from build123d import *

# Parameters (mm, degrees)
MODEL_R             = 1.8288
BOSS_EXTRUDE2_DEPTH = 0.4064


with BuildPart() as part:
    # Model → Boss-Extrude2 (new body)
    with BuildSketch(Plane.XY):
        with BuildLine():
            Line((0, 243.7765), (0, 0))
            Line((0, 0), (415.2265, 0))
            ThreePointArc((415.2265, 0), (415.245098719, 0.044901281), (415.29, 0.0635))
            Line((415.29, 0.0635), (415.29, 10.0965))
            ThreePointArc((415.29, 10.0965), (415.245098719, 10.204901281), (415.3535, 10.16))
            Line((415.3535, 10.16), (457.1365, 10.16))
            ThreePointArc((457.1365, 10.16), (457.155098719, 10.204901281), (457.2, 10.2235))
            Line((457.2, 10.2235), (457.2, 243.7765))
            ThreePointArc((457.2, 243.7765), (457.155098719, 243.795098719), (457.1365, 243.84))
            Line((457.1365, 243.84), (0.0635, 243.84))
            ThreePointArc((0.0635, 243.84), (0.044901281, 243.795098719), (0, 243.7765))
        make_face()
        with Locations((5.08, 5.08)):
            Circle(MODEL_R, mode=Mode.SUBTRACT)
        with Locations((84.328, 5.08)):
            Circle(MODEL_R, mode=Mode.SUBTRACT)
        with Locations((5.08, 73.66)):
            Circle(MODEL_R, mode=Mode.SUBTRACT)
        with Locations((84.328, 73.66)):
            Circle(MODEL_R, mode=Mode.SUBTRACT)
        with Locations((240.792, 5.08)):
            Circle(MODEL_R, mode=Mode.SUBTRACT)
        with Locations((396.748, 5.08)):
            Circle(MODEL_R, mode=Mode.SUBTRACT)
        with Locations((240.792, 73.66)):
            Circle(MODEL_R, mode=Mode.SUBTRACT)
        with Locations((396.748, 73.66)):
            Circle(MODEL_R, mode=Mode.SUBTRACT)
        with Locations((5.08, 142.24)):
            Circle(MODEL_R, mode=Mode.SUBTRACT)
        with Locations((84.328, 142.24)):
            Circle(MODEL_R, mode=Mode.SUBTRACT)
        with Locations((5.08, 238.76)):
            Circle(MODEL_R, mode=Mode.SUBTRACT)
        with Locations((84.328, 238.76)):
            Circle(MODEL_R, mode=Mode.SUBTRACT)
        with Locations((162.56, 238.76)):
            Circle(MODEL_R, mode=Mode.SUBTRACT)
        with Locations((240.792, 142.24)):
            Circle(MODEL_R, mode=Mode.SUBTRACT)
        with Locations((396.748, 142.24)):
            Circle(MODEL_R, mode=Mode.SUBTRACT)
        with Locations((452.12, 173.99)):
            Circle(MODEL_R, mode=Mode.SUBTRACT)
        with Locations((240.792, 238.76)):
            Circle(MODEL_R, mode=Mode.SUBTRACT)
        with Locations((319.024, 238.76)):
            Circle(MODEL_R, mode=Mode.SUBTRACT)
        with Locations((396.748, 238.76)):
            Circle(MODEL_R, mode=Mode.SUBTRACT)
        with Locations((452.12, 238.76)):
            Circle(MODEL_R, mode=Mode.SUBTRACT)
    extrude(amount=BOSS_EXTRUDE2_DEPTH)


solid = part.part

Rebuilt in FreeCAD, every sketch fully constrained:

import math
import FreeCAD as App
import Part
import Sketcher
Q = App.Units.Quantity

doc = App.newDocument("Part")
body = doc.addObject("PartDesign::Body", "Body")

sketch1 = body.newObject("Sketcher::SketchObject", "Sketch")
sketch1.AttachmentSupport = (doc.getObject("XY_Plane"), [""])
sketch1.MapMode = "FlatFace"
sketch1.addGeometry([
    Part.LineSegment(App.Vector(0, 243.78, 0), App.Vector(0, 0, 0)),
    Part.LineSegment(App.Vector(0, 0, 0), App.Vector(415.23, 0, 0)),
    Part.ArcOfCircle(Part.Circle(App.Vector(415.29, 0, 0), App.Vector(0, 0, 1), 0.06), math.radians(90), math.radians(180)),
    Part.LineSegment(App.Vector(415.29, 0.06, 0), App.Vector(415.29, 10.1, 0)),
    Part.ArcOfCircle(Part.Circle(App.Vector(415.29, 10.16, 0), App.Vector(0, 0, 1), 0.06), math.radians(0), math.radians(270)),
    Part.LineSegment(App.Vector(415.35, 10.16, 0), App.Vector(457.14, 10.16, 0)),
    Part.ArcOfCircle(Part.Circle(App.Vector(457.2, 10.16, 0), App.Vector(0, 0, 1), 0.06), math.radians(90), math.radians(180)),
    Part.LineSegment(App.Vector(457.2, 10.22, 0), App.Vector(457.2, 243.78, 0)),
    Part.ArcOfCircle(Part.Circle(App.Vector(457.2, 243.84, 0), App.Vector(0, 0, 1), 0.06), math.radians(180), math.radians(270)),
    Part.LineSegment(App.Vector(457.14, 243.84, 0), App.Vector(0.06, 243.84, 0)),
    Part.ArcOfCircle(Part.Circle(App.Vector(0, 243.84, 0), App.Vector(0, 0, 1), 0.06), math.radians(-90), math.radians(0)),
    Part.Circle(App.Vector(5.08, 5.08, 0), App.Vector(0, 0, 1), 1.83),
    Part.Circle(App.Vector(84.33, 5.08, 0), App.Vector(0, 0, 1), 1.83),
    Part.Circle(App.Vector(5.08, 73.66, 0), App.Vector(0, 0, 1), 1.83),
    Part.Circle(App.Vector(84.33, 73.66, 0), App.Vector(0, 0, 1), 1.83),
    Part.Circle(App.Vector(240.79, 5.08, 0), App.Vector(0, 0, 1), 1.83),
    Part.Circle(App.Vector(396.75, 5.08, 0), App.Vector(0, 0, 1), 1.83),
    Part.Circle(App.Vector(240.79, 73.66, 0), App.Vector(0, 0, 1), 1.83),
    Part.Circle(App.Vector(396.75, 73.66, 0), App.Vector(0, 0, 1), 1.83),
    Part.Circle(App.Vector(5.08, 142.24, 0), App.Vector(0, 0, 1), 1.83),
    Part.Circle(App.Vector(84.33, 142.24, 0), App.Vector(0, 0, 1), 1.83),
    Part.Circle(App.Vector(5.08, 238.76, 0), App.Vector(0, 0, 1), 1.83),
    Part.Circle(App.Vector(84.33, 238.76, 0), App.Vector(0, 0, 1), 1.83),
    Part.Circle(App.Vector(162.56, 238.76, 0), App.Vector(0, 0, 1), 1.83),
    Part.Circle(App.Vector(240.79, 142.24, 0), App.Vector(0, 0, 1), 1.83),
    Part.Circle(App.Vector(396.75, 142.24, 0), App.Vector(0, 0, 1), 1.83),
    Part.Circle(App.Vector(452.12, 173.99, 0), App.Vector(0, 0, 1), 1.83),
    Part.Circle(App.Vector(240.79, 238.76, 0), App.Vector(0, 0, 1), 1.83),
    Part.Circle(App.Vector(319.02, 238.76, 0), App.Vector(0, 0, 1), 1.83),
    Part.Circle(App.Vector(396.75, 238.76, 0), App.Vector(0, 0, 1), 1.83),
    Part.Circle(App.Vector(452.12, 238.76, 0), App.Vector(0, 0, 1), 1.83),
], False)
sketch1.addConstraint([
    Sketcher.Constraint("Coincident", 0, 2, 1, 1),
    Sketcher.Constraint("Coincident", 1, 2, 2, 2),
    Sketcher.Constraint("Coincident", 2, 1, 3, 1),
    Sketcher.Constraint("Coincident", 3, 2, 4, 2),
    Sketcher.Constraint("Coincident", 4, 1, 5, 1),
    Sketcher.Constraint("Coincident", 5, 2, 6, 2),
    Sketcher.Constraint("Coincident", 6, 1, 7, 1),
    Sketcher.Constraint("Coincident", 7, 2, 8, 2),
    Sketcher.Constraint("Coincident", 8, 1, 9, 1),
    Sketcher.Constraint("Coincident", 9, 2, 10, 2),
    Sketcher.Constraint("Coincident", 10, 1, 0, 1),
    Sketcher.Constraint("Vertical", 0),
    Sketcher.Constraint("Horizontal", 1),
    Sketcher.Constraint("Vertical", 3),
    Sketcher.Constraint("Horizontal", 5),
    Sketcher.Constraint("Vertical", 7),
    Sketcher.Constraint("Horizontal", 9),
    Sketcher.Constraint("Coincident", 0, 2, -1, 1),
    Sketcher.Constraint("Equal", 2, 4),
    Sketcher.Constraint("Equal", 4, 6),
    Sketcher.Constraint("Equal", 6, 8),
    Sketcher.Constraint("Equal", 8, 10),
    Sketcher.Constraint("Equal", 11, 12),
    Sketcher.Constraint("Equal", 12, 13),
    Sketcher.Constraint("Equal", 13, 14),
    Sketcher.Constraint("Equal", 14, 15),
    Sketcher.Constraint("Equal", 15, 16),
    Sketcher.Constraint("Equal", 16, 17),
    Sketcher.Constraint("Equal", 17, 18),
    Sketcher.Constraint("Equal", 18, 19),
    Sketcher.Constraint("Equal", 19, 20),
    Sketcher.Constraint("Equal", 20, 21),
    Sketcher.Constraint("Equal", 21, 22),
    Sketcher.Constraint("Equal", 22, 23),
    Sketcher.Constraint("Equal", 23, 24),
    Sketcher.Constraint("Equal", 24, 25),
    Sketcher.Constraint("Equal", 25, 26),
    Sketcher.Constraint("Equal", 26, 27),
    Sketcher.Constraint("Equal", 27, 28),
    Sketcher.Constraint("Equal", 28, 29),
    Sketcher.Constraint("Equal", 29, 30),
    Sketcher.Constraint("PointOnObject", 2, 3, -1),
    Sketcher.Constraint("PointOnObject", 10, 3, -2),
    Sketcher.Constraint("Horizontal", 4, 3, 6, 3),
    Sketcher.Constraint("Horizontal", 8, 3, 10, 3),
    Sketcher.Constraint("Horizontal", 11, 3, 12, 3),
    Sketcher.Constraint("Horizontal", 13, 3, 14, 3),
    Sketcher.Constraint("Horizontal", 12, 3, 15, 3),
    Sketcher.Constraint("Horizontal", 15, 3, 16, 3),
    Sketcher.Constraint("Horizontal", 14, 3, 17, 3),
    Sketcher.Constraint("Horizontal", 17, 3, 18, 3),
    Sketcher.Constraint("Horizontal", 19, 3, 20, 3),
    Sketcher.Constraint("Horizontal", 21, 3, 22, 3),
    Sketcher.Constraint("Horizontal", 22, 3, 23, 3),
    Sketcher.Constraint("Horizontal", 20, 3, 24, 3),
    Sketcher.Constraint("Horizontal", 24, 3, 25, 3),
    Sketcher.Constraint("Horizontal", 23, 3, 27, 3),
    Sketcher.Constraint("Horizontal", 27, 3, 28, 3),
    Sketcher.Constraint("Horizontal", 28, 3, 29, 3),
    Sketcher.Constraint("Horizontal", 29, 3, 30, 3),
    Sketcher.Constraint("Horizontal", 6, 3, 4, 1),
    Sketcher.Constraint("Horizontal", 10, 3, 8, 1),
    Sketcher.Constraint("Vertical", 2, 3, 4, 3),
    Sketcher.Constraint("Vertical", 6, 3, 8, 3),
    Sketcher.Constraint("Vertical", 11, 3, 13, 3),
    Sketcher.Constraint("Vertical", 12, 3, 14, 3),
    Sketcher.Constraint("Vertical", 15, 3, 17, 3),
    Sketcher.Constraint("Vertical", 16, 3, 18, 3),
    Sketcher.Constraint("Vertical", 13, 3, 19, 3),
    Sketcher.Constraint("Vertical", 14, 3, 20, 3),
    Sketcher.Constraint("Vertical", 19, 3, 21, 3),
    Sketcher.Constraint("Vertical", 20, 3, 22, 3),
    Sketcher.Constraint("Vertical", 17, 3, 24, 3),
    Sketcher.Constraint("Vertical", 18, 3, 25, 3),
    Sketcher.Constraint("Vertical", 24, 3, 27, 3),
    Sketcher.Constraint("Vertical", 25, 3, 29, 3),
    Sketcher.Constraint("Vertical", 26, 3, 30, 3),
    Sketcher.Constraint("Vertical", 4, 3, 2, 1),
    Sketcher.Constraint("Vertical", 8, 3, 6, 1),
    Sketcher.Constraint("Diameter", 11, Q("0.144 in")),
    Sketcher.Constraint("DistanceX", -1, 1, 6, 3, Q("18 in")),
    Sketcher.Constraint("DistanceY", 19, 3, 10, 3, Q("4 in")),
    Sketcher.Constraint("DistanceY", -1, 1, 4, 3, Q("0.4 in")),
    Sketcher.Constraint("DistanceY", -1, 1, 8, 3, Q("9.6 in")),
    Sketcher.Constraint("DistanceX", -1, 1, 11, 3, Q("0.2 in")),
    Sketcher.Constraint("DistanceY", -1, 1, 11, 3, Q("0.2 in")),
    Sketcher.Constraint("DistanceY", -1, 1, 13, 3, Q("2.9 in")),
    Sketcher.Constraint("DistanceY", -1, 1, 21, 3, Q("9.4 in")),
    Sketcher.Constraint("DistanceX", -1, 1, 23, 3, Q("6.4 in")),
    Sketcher.Constraint("DistanceX", -1, 1, 26, 3, Q("17.8 in")),
    Sketcher.Constraint("Radius", 2, Q("0.0025 in")),
    Sketcher.Constraint("DistanceX", 5, 1, 5, 2, Q("1.645 in")),
    Sketcher.Constraint("DistanceX", -1, 1, 12, 3, Q("3.32 in")),
    Sketcher.Constraint("DistanceX", -1, 1, 15, 3, Q("9.48 in")),
    Sketcher.Constraint("DistanceX", -1, 1, 16, 3, Q("15.62 in")),
    Sketcher.Constraint("DistanceY", -1, 1, 26, 3, Q("6.85 in")),
    Sketcher.Constraint("DistanceX", -1, 1, 28, 3, Q("12.56 in")),
])
pad1 = body.newObject("PartDesign::Pad", "Pad")
pad1.Profile = sketch1
pad1.Length = Q("0.016 in")

doc.recompute()
